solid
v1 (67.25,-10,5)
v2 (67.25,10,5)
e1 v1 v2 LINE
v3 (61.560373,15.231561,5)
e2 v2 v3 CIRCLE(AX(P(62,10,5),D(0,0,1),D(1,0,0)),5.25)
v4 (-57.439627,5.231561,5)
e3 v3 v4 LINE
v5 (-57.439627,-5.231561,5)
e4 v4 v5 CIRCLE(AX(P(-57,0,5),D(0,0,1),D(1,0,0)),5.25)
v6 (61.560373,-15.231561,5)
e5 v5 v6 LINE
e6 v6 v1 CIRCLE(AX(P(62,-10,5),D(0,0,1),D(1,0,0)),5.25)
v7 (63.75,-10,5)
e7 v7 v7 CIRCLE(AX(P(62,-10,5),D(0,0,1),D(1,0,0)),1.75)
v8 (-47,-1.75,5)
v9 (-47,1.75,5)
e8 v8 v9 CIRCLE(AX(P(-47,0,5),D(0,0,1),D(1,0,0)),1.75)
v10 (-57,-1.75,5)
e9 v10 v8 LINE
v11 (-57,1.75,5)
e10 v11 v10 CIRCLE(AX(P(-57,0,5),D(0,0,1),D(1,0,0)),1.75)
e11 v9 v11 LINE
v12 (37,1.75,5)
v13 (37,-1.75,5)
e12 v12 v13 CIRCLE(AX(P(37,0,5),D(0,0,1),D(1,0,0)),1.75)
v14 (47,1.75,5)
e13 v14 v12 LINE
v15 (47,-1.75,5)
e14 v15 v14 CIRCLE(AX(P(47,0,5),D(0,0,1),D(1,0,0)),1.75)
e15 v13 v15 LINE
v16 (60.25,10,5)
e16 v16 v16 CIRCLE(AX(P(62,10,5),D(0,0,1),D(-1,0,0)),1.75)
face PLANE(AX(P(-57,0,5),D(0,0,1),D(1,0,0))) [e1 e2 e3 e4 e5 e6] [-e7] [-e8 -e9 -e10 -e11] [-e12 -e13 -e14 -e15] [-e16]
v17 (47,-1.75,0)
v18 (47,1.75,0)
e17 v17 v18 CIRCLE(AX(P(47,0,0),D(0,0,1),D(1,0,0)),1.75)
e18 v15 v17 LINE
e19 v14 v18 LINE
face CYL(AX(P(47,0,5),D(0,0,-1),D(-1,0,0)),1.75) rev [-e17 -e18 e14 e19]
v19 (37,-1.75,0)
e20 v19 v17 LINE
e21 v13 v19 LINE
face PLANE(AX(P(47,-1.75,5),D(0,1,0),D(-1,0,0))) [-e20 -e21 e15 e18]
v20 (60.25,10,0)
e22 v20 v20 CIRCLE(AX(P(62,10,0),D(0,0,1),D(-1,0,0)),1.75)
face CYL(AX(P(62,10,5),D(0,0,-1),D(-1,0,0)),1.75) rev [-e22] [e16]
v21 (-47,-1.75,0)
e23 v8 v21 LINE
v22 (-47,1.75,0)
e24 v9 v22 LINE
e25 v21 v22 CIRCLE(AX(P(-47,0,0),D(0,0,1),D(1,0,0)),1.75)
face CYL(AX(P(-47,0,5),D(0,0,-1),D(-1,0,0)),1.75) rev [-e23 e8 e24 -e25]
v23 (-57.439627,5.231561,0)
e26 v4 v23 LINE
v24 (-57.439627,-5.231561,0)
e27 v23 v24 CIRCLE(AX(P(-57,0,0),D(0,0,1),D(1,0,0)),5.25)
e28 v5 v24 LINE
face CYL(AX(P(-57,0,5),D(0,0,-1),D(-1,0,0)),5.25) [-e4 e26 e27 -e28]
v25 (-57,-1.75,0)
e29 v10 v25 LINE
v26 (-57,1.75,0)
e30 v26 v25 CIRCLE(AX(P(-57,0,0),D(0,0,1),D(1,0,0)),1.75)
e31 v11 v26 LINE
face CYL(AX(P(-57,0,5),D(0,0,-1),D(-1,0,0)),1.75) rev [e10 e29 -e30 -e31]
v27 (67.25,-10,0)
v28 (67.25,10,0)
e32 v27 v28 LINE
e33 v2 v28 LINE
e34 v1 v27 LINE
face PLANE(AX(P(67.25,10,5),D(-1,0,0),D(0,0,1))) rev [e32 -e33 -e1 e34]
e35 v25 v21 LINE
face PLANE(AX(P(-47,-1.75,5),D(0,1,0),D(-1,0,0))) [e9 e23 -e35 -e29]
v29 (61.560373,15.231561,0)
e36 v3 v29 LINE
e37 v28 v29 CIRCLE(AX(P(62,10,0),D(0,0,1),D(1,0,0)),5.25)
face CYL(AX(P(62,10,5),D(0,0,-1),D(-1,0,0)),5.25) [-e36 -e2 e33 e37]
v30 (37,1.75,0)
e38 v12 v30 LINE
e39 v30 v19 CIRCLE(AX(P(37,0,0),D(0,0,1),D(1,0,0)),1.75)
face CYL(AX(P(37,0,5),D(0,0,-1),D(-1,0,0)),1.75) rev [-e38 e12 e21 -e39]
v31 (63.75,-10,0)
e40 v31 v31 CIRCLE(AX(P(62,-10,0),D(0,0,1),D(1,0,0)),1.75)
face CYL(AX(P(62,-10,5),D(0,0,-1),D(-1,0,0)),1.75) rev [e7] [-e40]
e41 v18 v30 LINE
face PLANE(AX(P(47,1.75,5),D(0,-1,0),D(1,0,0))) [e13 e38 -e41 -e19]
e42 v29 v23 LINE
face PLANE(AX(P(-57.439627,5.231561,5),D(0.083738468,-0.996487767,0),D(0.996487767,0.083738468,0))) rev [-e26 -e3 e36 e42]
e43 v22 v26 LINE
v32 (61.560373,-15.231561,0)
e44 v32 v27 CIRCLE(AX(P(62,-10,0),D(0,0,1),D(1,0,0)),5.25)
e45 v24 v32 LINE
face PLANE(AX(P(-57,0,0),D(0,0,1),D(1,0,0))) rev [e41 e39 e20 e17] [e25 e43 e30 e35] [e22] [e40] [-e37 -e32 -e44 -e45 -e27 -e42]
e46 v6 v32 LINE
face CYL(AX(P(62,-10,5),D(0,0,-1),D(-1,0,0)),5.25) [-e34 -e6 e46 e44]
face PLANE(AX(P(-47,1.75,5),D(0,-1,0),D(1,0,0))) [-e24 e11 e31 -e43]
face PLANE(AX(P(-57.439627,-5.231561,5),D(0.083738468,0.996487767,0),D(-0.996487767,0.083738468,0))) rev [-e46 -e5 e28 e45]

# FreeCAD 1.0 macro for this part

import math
import FreeCAD as App
import Part
import Sketcher
from FreeCAD import Vector
Q = App.Units.Quantity

doc = App.newDocument("Part")
body = doc.addObject("PartDesign::Body", "Body")

sketch1 = body.newObject("Sketcher::SketchObject", "Sketch")
sketch1.AttachmentSupport = (doc.getObject("XY_Plane"), [""])
sketch1.MapMode = "FlatFace"
sketch1.addGeometry([
    Part.LineSegment(Vector(67.2, -10, 0), Vector(67.2, 10, 0)),
    Part.ArcOfCircle(Part.Circle(Vector(62, 10, 0), Vector(0, 0, 1), 5.3), math.radians(0), math.radians(95)),
    Part.LineSegment(Vector(61.6, 15.2, 0), Vector(-57.4, 5.2, 0)),
    Part.ArcOfCircle(Part.Circle(Vector(-57, 0, 0), Vector(0, 0, 1), 5.2), math.radians(95), math.radians(265)),
    Part.LineSegment(Vector(-57.4, -5.2, 0), Vector(61.6, -15.2, 0)),
    Part.ArcOfCircle(Part.Circle(Vector(62, -10, 0), Vector(0, 0, 1), 5.3), math.radians(-95), math.radians(0)),
    Part.Circle(Vector(62, -10, 0), Vector(0, 0, 1), 1.8),
    Part.LineSegment(Vector(47, -1.8, 0), Vector(37, -1.8, 0)),
    Part.ArcOfCircle(Part.Circle(Vector(37, 0, 0), Vector(0, 0, 1), 1.8), math.radians(90), math.radians(270)),
    Part.LineSegment(Vector(37, 1.8, 0), Vector(47, 1.8, 0)),
    Part.ArcOfCircle(Part.Circle(Vector(47, 0, 0), Vector(0, 0, 1), 1.8), math.radians(-90), math.radians(90)),
    Part.Circle(Vector(62, 10, 0), Vector(0, 0, 1), 1.8),
    Part.LineSegment(Vector(-47, -1.8, 0), Vector(-57, -1.8, 0)),
    Part.ArcOfCircle(Part.Circle(Vector(-57, 0, 0), Vector(0, 0, 1), 1.8), math.radians(90), math.radians(270)),
    Part.LineSegment(Vector(-57, 1.8, 0), Vector(-47, 1.8, 0)),
    Part.ArcOfCircle(Part.Circle(Vector(-47, 0, 0), Vector(0, 0, 1), 1.8), math.radians(-90), math.radians(90)),
], False)
sketch1.addConstraint([
    Sketcher.Constraint("Tangent", 0, 2, 1, 1),
    Sketcher.Constraint("Tangent", 1, 2, 2, 1),
    Sketcher.Constraint("Tangent", 2, 2, 3, 1),
    Sketcher.Constraint("Tangent", 3, 2, 4, 1),
    Sketcher.Constraint("Tangent", 4, 2, 5, 1),
    Sketcher.Constraint("Tangent", 5, 2, 0, 1),
    Sketcher.Constraint("Tangent", 7, 2, 8, 2),
    Sketcher.Constraint("Tangent", 8, 1, 9, 1),
    Sketcher.Constraint("Tangent", 9, 2, 10, 2),
    Sketcher.Constraint("Tangent", 10, 1, 7, 1),
    Sketcher.Constraint("Tangent", 12, 2, 13, 2),
    Sketcher.Constraint("Tangent", 13, 1, 14, 1),
    Sketcher.Constraint("Tangent", 14, 2, 15, 2),
    Sketcher.Constraint("Tangent", 15, 1, 12, 1),
    Sketcher.Constraint("Vertical", 0),
    Sketcher.Constraint("Horizontal", 7),
    Sketcher.Constraint("Horizontal", 9),
    Sketcher.Constraint("Horizontal", 12),
    Sketcher.Constraint("Horizontal", 14),
    Sketcher.Constraint("Coincident", 6, 3, 5, 3),
    Sketcher.Constraint("Coincident", 11, 3, 1, 3),
    Sketcher.Constraint("Coincident", 13, 3, 3, 3),
    Sketcher.Constraint("Equal", 1, 3),
    Sketcher.Constraint("Equal", 3, 5),
    Sketcher.Constraint("Equal", 6, 8),
    Sketcher.Constraint("Equal", 10, 11),
    Sketcher.Constraint("Equal", 11, 13),
    Sketcher.Constraint("Symmetric", 10, 3, 15, 3, -1, 1),
    Sketcher.Constraint("Symmetric", 2, 2, 3, 2, -1),
    Sketcher.Constraint("Equal", 9, 12),
    Sketcher.Constraint("Diameter", 6, Q("3.5 mm")),
    Sketcher.Constraint("DistanceX", 7, 2, 7, 1, Q("10 mm")),
    Sketcher.Constraint("DistanceY", 0, 1, 0, 2, Q("20 mm")),
    Sketcher.Constraint("Radius", 1, Q("5.25 mm")),
    Sketcher.Constraint("DistanceX", -1, 1, 1, 3, Q("62 mm")),
    Sketcher.Constraint("DistanceX", 3, 3, -1, 1, Q("57 mm")),
])
pad1 = body.newObject("PartDesign::Pad", "Pad")
pad1.Profile = sketch1
pad1.Length = 5

doc.recompute()
